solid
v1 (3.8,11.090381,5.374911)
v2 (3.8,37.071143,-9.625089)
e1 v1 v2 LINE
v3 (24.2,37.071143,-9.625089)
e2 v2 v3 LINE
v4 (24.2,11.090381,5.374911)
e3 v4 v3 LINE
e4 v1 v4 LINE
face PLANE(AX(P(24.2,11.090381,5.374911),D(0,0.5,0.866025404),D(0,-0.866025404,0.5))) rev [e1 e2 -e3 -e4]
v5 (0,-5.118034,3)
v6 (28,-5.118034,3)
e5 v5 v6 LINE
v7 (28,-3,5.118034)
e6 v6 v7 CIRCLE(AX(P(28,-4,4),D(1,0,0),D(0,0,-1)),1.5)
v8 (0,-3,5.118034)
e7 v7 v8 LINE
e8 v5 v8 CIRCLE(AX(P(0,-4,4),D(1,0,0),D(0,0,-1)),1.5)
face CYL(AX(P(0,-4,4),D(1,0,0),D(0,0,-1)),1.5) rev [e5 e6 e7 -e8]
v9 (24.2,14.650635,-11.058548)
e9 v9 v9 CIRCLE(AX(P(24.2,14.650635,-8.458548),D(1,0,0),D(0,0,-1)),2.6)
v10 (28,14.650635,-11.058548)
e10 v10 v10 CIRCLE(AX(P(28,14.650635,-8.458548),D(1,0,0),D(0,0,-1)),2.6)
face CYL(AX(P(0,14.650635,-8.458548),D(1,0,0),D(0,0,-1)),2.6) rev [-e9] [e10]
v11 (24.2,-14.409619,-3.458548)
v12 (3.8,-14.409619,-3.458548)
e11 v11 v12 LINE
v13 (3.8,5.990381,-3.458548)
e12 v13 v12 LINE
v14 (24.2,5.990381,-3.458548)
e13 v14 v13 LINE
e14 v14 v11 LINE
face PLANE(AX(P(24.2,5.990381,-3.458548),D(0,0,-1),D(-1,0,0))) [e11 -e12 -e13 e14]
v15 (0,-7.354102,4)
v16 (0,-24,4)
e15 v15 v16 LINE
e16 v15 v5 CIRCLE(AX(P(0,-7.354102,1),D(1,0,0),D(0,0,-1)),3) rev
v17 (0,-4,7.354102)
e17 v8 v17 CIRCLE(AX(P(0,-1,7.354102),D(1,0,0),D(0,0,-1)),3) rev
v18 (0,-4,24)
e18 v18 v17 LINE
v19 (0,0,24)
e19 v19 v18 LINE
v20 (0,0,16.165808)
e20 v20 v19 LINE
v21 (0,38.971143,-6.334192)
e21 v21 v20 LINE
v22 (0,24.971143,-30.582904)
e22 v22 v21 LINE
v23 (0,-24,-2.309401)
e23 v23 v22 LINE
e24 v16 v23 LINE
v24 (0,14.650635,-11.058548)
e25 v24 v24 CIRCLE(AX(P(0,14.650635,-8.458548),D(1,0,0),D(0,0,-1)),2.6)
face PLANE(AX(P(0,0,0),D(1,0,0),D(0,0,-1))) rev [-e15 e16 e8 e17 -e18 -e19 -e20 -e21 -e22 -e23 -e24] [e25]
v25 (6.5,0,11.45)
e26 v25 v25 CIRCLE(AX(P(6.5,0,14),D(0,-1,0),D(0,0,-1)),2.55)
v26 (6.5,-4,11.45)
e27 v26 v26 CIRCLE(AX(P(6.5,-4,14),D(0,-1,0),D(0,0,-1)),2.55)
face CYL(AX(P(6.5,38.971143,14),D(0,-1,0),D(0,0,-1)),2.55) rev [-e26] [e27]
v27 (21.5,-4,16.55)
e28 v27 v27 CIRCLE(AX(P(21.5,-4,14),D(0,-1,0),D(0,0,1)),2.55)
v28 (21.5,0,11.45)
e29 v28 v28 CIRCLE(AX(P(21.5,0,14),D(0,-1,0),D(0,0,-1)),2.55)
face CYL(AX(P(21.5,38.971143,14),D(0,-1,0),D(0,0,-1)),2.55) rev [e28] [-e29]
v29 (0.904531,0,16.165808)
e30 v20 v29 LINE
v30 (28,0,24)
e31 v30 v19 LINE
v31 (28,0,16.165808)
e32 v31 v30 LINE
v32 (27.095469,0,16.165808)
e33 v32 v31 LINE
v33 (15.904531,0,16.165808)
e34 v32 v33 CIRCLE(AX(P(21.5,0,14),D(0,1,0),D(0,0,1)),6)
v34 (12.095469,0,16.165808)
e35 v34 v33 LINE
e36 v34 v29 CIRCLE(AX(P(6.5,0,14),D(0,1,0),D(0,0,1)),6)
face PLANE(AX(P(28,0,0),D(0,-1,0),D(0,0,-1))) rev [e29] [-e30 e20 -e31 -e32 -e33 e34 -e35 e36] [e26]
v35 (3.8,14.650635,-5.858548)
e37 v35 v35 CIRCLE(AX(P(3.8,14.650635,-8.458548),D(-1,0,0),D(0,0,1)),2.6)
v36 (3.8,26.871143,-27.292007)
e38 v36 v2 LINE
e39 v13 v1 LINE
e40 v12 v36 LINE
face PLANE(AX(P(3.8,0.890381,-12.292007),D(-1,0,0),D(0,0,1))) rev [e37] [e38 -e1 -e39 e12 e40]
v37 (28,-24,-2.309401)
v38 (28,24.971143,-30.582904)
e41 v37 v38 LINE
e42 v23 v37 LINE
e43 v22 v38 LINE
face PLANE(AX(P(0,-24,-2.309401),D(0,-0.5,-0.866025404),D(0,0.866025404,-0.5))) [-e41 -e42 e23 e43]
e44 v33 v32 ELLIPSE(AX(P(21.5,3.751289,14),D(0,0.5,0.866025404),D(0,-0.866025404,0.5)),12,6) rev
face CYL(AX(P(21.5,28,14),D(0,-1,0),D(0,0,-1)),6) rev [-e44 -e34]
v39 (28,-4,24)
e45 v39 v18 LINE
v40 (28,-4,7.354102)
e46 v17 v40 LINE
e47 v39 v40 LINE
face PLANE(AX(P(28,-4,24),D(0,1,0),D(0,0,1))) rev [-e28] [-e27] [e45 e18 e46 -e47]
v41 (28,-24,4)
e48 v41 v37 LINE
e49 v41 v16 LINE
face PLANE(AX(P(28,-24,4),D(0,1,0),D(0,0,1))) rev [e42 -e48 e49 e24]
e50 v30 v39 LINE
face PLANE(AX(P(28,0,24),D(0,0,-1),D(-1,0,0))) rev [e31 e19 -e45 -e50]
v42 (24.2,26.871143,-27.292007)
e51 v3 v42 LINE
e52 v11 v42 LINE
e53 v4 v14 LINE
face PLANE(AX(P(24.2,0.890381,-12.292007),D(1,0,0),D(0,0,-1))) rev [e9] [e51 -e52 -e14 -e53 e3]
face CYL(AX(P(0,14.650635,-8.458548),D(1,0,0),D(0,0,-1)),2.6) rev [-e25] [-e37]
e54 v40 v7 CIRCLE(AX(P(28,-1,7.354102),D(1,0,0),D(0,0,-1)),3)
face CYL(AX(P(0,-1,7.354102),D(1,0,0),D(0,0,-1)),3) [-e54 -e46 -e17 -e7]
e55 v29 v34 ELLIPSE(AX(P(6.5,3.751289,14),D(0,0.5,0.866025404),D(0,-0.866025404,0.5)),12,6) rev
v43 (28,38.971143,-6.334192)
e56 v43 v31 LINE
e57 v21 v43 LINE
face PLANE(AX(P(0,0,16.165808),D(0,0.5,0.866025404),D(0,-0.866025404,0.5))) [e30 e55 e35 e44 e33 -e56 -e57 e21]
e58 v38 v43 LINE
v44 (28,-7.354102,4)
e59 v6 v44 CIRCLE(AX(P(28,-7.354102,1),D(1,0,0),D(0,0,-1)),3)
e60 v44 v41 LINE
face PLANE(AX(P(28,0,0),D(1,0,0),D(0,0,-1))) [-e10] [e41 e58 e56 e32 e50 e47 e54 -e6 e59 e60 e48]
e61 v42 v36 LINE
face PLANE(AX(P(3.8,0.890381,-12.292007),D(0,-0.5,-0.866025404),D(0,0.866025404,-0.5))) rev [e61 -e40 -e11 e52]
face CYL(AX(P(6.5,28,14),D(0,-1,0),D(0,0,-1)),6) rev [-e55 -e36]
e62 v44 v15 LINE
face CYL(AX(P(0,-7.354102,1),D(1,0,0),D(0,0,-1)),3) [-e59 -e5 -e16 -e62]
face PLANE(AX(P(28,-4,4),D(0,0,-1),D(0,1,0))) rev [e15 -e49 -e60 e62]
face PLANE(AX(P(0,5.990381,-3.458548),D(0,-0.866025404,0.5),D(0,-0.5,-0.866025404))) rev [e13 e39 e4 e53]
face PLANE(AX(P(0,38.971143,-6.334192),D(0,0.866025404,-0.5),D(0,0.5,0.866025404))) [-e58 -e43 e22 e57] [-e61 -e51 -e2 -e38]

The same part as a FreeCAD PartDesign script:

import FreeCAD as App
import Part
import Sketcher

V = App.Vector
Q = App.Units.Quantity


def edges_at(feature, points):
    """Names of the edges that pass closest to the given points."""
    edges = feature.Shape.Edges
    near = lambda p: min(range(len(edges)), key=lambda i: edges[i].distToShape(Part.Vertex(*p))[0])
    return sorted({f"Edge{near(p) + 1}" for p in points})


def add_polygon(sketch, points):
    """Adds a closed chain of lines whose ends are joined by coincident constraints."""
    first, n = sketch.GeometryCount, len(points)
    for a, b in zip(points, points[1:] + points[:1]):
        sketch.addGeometry(Part.LineSegment(App.Vector(*a, 0), App.Vector(*b, 0)), False)
    for i in range(n):
        sketch.addConstraint(Sketcher.Constraint("Coincident", first + i, 2, first + (i + 1) % n, 1))

doc = App.newDocument("Part")
body = doc.addObject("PartDesign::Body", "Body")

# Sketch on YZ plane
sketch1 = body.newObject("Sketcher::SketchObject", "Sketch")
sketch1.AttachmentSupport = (doc.getObject("YZ_Plane"), [""])
sketch1.MapMode = "FlatFace"
add_polygon(sketch1, [(0, 0), (0, 24), (-4, 24), (-4, 4), (-24, 4), (-24, 0)])  # lines 0-5
sketch1.addConstraint([
    Sketcher.Constraint("Vertical", 0),
    Sketcher.Constraint("Horizontal", 1),
    Sketcher.Constraint("Vertical", 2),
    Sketcher.Constraint("Horizontal", 3),
    Sketcher.Constraint("Vertical", 4),
    Sketcher.Constraint("Horizontal", 5),
    Sketcher.Constraint("Coincident", 5, 2, -1, 1),
    Sketcher.Constraint("Equal", 5, 0),
    Sketcher.Constraint("Equal", 3, 2),
    Sketcher.Constraint("DistanceX", 1, 2, 1, 1, Q("4 mm")),
    Sketcher.Constraint("DistanceX", 3, 2, 3, 1, Q("20 mm")),
])
pad1 = body.newObject("PartDesign::Pad", "Pad")
pad1.Profile = sketch1
pad1.Length = 28

# Sketch on YZ plane
sketch2 = body.newObject("Sketcher::SketchObject", "Sketch001")
sketch2.AttachmentSupport = (doc.getObject("YZ_Plane"), [""])
sketch2.MapMode = "FlatFace"
sketch2.AttachmentOffset = App.Placement(V(0, 0, 28), App.Rotation())
add_polygon(sketch2, [(-24, -2.3), (25, -30.6), (39, -6.3), (0, 16.2), (0, 0), (-24, 0)])  # lines 0-5
sketch2.addConstraint([
    Sketcher.Constraint("Vertical", 3),
    Sketcher.Constraint("Horizontal", 4),
    Sketcher.Constraint("Vertical", 5),
    Sketcher.Constraint("Coincident", 3, 2, -1, 1),
    Sketcher.Constraint("Perpendicular", 0, 1),
    Sketcher.Constraint("Perpendicular", 1, 2),
    Sketcher.Constraint("DistanceX", 4, 2, 4, 1, Q("24 mm")),
    Sketcher.Constraint("Angle", 0, Q("-30 deg")),
    Sketcher.Constraint("Distance", 1, Q("28 mm")),
    Sketcher.Constraint("Distance", 2, Q("45 mm")),
    Sketcher.Constraint("DistanceY", 5, 2, 5, 1, Q("2.309401 mm")),
])
pad2 = body.newObject("PartDesign::Pad", "Pad001")
pad2.Profile = sketch2
pad2.Length = 28
pad2.Reversed = True

# Sketch on XZ plane
sketch3 = body.newObject("Sketcher::SketchObject", "Sketch002")
sketch3.AttachmentSupport = (doc.getObject("XZ_Plane"), [""])
sketch3.MapMode = "FlatFace"
sketch3.AttachmentOffset = App.Placement(V(0, 0, 4), App.Rotation())
sketch3.addGeometry([
    Part.Circle(V(6.5, 14, 0), V(0, 0, 1), 2.5),
    Part.Circle(V(21.5, 14, 0), V(0, 0, 1), 2.5),
], False)
sketch3.addConstraint([
    Sketcher.Constraint("Equal", 0, 1),
    Sketcher.Constraint("Horizontal", 0, 3, 1, 3),
    Sketcher.Constraint("Diameter", 0, Q("5.1 mm")),
    Sketcher.Constraint("DistanceY", -1, 1, 0, 3, Q("14 mm")),
    Sketcher.Constraint("DistanceX", 0, 3, 1, 3, Q("15 mm")),
    Sketcher.Constraint("DistanceX", -1, 1, 0, 3, Q("6.5 mm")),
])
pocket1 = body.newObject("PartDesign::Pocket", "Pocket")
pocket1.Profile = sketch3
pocket1.Type = "ThroughAll"

# Sketch on XZ plane
sketch4 = body.newObject("Sketcher::SketchObject", "Sketch003")
sketch4.AttachmentSupport = (doc.getObject("XZ_Plane"), [""])
sketch4.MapMode = "FlatFace"
sketch4.addGeometry([
    Part.Circle(V(6, 14, 0), V(0, 0, 1), 6),
    Part.Circle(V(22, 14, 0), V(0, 0, 1), 6),
], False)
sketch4.addConstraint([
    Sketcher.Constraint("Equal", 0, 1),
    Sketcher.Constraint("Horizontal", 0, 3, 1, 3),
    Sketcher.Constraint("Diameter", 0, Q("12 mm")),
    Sketcher.Constraint("DistanceY", -1, 1, 0, 3, Q("14 mm")),
    Sketcher.Constraint("DistanceX", 0, 3, 1, 3, Q("15 mm")),
    Sketcher.Constraint("DistanceX", -1, 1, 0, 3, Q("6.5 mm")),
])
pocket2 = body.newObject("PartDesign::Pocket", "Pocket001")
pocket2.Profile = sketch4
pocket2.Length = 28

# Sketch on an angled plane
sketch5 = body.newObject("Sketcher::SketchObject", "Sketch004")
sketch5.Placement = App.Placement(V(0, 31.971143, -18.458548), App.Rotation(V(1, 0, 0), V(0, -0.5, -0.866025404), V(0, 0.866025404, -0.5), "ZXY"))
add_polygon(sketch5, [(4, 10), (4, -10), (24, -10), (24, 10)])  # lines 0-3
sketch5.addConstraint([
    Sketcher.Constraint("Vertical", 0),
    Sketcher.Constraint("Horizontal", 1),
    Sketcher.Constraint("Vertical", 2),
    Sketcher.Constraint("Horizontal", 3),
    Sketcher.Constraint("Equal", 3, 0),
    Sketcher.Constraint("DistanceX", 1, 1, 1, 2, Q("20.4 mm")),
    Sketcher.Constraint("DistanceX", -1, 1, 0, 2, Q("3.8 mm")),
    Sketcher.Constraint("DistanceY", 0, 2, -1, 1, Q("10.2 mm")),
])
pocket3 = body.newObject("PartDesign::Pocket", "Pocket002")
pocket3.Profile = sketch5
pocket3.Length = 30

# Sketch on YZ plane
sketch6 = body.newObject("Sketcher::SketchObject", "Sketch005")
sketch6.AttachmentSupport = (doc.getObject("YZ_Plane"), [""])
sketch6.MapMode = "FlatFace"
sketch6.AttachmentOffset = App.Placement(V(0, 0, 3.8), App.Rotation())
add_polygon(sketch6, [(1, -12), (6, -3), (-14, -3)])  # lines 0-2
sketch6.addConstraint([
    Sketcher.Constraint("Horizontal", 1),
    Sketcher.Constraint("Perpendicular", 0, 2),
    Sketcher.Constraint("Angle", 0, Q("60 deg")),
    Sketcher.Constraint("DistanceX", 1, 2, 1, 1, Q("20.4 mm")),
    Sketcher.Constraint("DistanceX", -1, 1, 0, 2, Q("5.990381 mm")),
    Sketcher.Constraint("DistanceY", 0, 2, -1, 1, Q("3.458548 mm")),
])
pocket4 = body.newObject("PartDesign::Pocket", "Pocket003")
pocket4.Profile = sketch6
pocket4.Length = 20.4
pocket4.Reversed = True

# Sketch on YZ plane
sketch7 = body.newObject("Sketcher::SketchObject", "Sketch006")
sketch7.AttachmentSupport = (doc.getObject("YZ_Plane"), [""])
sketch7.MapMode = "FlatFace"
sketch7.AttachmentOffset = App.Placement(V(0, 0, 28), App.Rotation())
sketch7.addGeometry(Part.Circle(V(14.7, -8.5, 0), V(0, 0, 1), 2.6), False)
sketch7.addConstraint([
    Sketcher.Constraint("Diameter", 0, Q("5.2 mm")),
    Sketcher.Constraint("DistanceY", 0, 3, -1, 1, Q("8.458548 mm")),
    Sketcher.Constraint("DistanceX", -1, 1, 0, 3, Q("14.650635 mm")),
])
pocket5 = body.newObject("PartDesign::Pocket", "Pocket004")
pocket5.Profile = sketch7
pocket5.Type = "ThroughAll"

# Sketch on YZ plane
sketch8 = body.newObject("Sketcher::SketchObject", "Sketch007")
sketch8.AttachmentSupport = (doc.getObject("YZ_Plane"), [""])
sketch8.MapMode = "FlatFace"
sketch8.AttachmentOffset = App.Placement(V(0, 0, 28), App.Rotation())
sketch8.addGeometry(Part.Circle(V(-4, 4, 0), V(0, 0, 1), 1.5), False)
sketch8.addConstraint([
    Sketcher.Constraint("Diameter", 0, Q("3 mm")),
    Sketcher.Constraint("DistanceX", 0, 3, -1, 1, Q("4 mm")),
    Sketcher.Constraint("DistanceY", -1, 1, 0, 3, Q("4 mm")),
])
pocket6 = body.newObject("PartDesign::Pocket", "Pocket005")
pocket6.Profile = sketch8
pocket6.Type = "ThroughAll"
doc.recompute()

fillet = body.newObject("PartDesign::Fillet", "Fillet")
fillet.Base = (pocket6, edges_at(pocket6, [(14, -4, 5.5), (14, -5.5, 4)]))
fillet.Radius = 3

doc.recompute()
